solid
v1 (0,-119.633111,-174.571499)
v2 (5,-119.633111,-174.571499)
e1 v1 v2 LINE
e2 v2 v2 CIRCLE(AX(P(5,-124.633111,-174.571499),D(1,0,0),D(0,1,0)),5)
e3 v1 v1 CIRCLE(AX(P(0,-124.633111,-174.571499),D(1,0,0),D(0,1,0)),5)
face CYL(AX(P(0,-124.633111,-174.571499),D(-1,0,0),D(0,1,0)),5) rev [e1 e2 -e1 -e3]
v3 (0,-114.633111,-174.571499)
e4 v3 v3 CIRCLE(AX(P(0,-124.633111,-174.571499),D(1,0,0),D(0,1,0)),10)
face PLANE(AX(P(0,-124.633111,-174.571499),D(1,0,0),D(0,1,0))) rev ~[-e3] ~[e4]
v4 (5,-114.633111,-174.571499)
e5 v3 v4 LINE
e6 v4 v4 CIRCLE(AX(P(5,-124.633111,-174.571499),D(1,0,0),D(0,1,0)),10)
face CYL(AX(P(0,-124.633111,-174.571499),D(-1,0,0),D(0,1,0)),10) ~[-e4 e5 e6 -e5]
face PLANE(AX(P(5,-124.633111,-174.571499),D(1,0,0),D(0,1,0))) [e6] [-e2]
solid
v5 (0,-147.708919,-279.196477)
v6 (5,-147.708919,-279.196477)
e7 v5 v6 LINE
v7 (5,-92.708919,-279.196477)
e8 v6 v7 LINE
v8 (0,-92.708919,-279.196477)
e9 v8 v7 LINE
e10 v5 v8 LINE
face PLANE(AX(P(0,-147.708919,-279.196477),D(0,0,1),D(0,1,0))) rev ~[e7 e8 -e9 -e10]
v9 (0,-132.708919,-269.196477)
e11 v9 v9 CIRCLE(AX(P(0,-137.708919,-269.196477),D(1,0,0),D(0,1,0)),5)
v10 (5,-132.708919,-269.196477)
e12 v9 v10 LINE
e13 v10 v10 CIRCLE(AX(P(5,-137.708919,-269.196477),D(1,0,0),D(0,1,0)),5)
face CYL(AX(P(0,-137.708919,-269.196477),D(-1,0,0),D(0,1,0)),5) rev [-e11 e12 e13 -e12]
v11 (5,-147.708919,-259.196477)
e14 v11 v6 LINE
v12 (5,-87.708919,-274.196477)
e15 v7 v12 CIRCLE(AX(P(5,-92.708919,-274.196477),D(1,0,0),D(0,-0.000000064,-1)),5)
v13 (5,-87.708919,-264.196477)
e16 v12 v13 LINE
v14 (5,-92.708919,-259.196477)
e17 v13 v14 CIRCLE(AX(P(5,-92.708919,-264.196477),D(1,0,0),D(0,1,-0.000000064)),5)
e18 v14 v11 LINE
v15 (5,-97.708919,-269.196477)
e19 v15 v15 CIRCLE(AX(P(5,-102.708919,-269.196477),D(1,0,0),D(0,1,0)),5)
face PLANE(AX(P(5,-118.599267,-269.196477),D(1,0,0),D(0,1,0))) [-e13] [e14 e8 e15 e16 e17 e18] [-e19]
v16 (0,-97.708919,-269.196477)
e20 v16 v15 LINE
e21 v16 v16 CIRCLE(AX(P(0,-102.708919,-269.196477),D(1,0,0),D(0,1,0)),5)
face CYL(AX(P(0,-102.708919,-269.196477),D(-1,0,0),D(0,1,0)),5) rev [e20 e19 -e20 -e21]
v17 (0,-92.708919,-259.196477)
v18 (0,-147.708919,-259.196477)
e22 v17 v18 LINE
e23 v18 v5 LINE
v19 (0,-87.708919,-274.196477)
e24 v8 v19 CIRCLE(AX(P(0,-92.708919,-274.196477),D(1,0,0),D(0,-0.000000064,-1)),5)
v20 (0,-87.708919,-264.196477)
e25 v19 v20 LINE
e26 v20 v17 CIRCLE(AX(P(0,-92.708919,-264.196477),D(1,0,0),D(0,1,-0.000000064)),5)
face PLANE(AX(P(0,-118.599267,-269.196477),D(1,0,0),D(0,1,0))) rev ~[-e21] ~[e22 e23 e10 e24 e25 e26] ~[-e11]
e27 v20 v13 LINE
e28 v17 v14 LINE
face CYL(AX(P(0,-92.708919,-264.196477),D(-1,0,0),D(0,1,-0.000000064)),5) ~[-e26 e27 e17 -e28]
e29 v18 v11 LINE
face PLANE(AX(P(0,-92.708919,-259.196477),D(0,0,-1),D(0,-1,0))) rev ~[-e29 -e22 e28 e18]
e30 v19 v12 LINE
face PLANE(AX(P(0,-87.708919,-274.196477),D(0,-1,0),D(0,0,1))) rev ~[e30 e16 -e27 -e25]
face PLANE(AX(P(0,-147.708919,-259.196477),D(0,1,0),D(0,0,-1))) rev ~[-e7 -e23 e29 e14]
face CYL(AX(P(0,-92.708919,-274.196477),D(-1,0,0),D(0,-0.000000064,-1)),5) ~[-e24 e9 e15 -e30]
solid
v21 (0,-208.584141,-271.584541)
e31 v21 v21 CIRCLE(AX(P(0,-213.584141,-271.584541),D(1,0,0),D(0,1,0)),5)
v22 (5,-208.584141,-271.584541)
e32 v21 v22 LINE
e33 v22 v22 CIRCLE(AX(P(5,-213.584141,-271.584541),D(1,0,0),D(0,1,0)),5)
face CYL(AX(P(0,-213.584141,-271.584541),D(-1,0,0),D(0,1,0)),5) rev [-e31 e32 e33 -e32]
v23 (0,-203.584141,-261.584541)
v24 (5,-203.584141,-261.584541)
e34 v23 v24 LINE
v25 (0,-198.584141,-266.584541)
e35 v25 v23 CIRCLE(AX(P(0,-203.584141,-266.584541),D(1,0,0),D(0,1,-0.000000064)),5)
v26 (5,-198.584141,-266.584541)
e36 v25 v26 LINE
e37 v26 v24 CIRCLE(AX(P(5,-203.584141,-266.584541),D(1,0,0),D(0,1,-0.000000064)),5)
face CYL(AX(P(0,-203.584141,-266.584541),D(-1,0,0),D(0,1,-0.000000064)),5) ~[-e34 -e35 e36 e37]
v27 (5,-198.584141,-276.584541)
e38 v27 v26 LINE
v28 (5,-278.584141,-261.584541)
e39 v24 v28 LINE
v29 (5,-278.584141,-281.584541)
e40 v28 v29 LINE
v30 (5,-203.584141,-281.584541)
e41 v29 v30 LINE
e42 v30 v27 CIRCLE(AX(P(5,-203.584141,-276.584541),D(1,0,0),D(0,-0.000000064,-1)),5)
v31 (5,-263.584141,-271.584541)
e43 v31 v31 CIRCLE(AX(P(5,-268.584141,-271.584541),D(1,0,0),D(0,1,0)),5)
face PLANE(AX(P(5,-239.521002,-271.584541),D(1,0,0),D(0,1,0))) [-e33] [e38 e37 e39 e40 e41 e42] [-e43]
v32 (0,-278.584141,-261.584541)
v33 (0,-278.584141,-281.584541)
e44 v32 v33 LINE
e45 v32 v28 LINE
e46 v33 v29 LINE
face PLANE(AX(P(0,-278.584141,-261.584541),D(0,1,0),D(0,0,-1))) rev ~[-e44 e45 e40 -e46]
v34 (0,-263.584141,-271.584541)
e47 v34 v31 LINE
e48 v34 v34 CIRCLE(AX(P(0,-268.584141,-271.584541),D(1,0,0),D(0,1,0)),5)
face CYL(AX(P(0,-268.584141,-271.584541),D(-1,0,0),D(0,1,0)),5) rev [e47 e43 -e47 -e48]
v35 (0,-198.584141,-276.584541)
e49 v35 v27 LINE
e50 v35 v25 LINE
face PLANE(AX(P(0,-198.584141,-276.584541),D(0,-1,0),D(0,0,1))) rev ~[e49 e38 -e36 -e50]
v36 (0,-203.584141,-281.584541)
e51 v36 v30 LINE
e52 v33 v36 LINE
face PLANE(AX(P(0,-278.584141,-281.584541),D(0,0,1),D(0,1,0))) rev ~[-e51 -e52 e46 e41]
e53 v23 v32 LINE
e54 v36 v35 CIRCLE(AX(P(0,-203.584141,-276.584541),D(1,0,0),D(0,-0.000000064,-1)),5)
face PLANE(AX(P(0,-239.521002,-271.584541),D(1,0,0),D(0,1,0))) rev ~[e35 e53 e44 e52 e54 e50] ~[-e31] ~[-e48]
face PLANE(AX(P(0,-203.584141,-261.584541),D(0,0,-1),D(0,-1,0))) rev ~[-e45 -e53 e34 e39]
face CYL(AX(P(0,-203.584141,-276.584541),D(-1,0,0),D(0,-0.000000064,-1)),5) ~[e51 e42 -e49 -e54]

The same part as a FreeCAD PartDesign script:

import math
import FreeCAD as App
import Part
import Sketcher
Q = App.Units.Quantity

doc = App.newDocument("Part")
body = doc.addObject("PartDesign::Body", "Body")
body.AllowCompound = True

# Sketch on YZ plane
sketch1 = body.newObject("Sketcher::SketchObject", "Sketch")
sketch1.AttachmentSupport = (doc.getObject("YZ_Plane"), [""])
sketch1.MapMode = "FlatFace"
sketch1.addGeometry(Part.LineSegment(App.Vector(-92.708919, -259.196477, 0), App.Vector(-147.708919, -259.196477, 0)), False)
sketch1.addGeometry(Part.LineSegment(App.Vector(-147.708919, -259.196477, 0), App.Vector(-147.708919, -279.196477, 0)), False)
sketch1.addGeometry(Part.LineSegment(App.Vector(-147.708919, -279.196477, 0), App.Vector(-92.708919, -279.196477, 0)), False)
sketch1.addGeometry(Part.ArcOfCircle(Part.Circle(App.Vector(-92.708919, -274.196477, 0), App.Vector(0, 0, 1), 5), math.radians(-90.000004), math.radians(0.000004)), False)
sketch1.addGeometry(Part.LineSegment(App.Vector(-87.708919, -274.196477, 0), App.Vector(-87.708919, -264.196477, 0)), False)
sketch1.addGeometry(Part.ArcOfCircle(Part.Circle(App.Vector(-92.708919, -264.196477, 0), App.Vector(0, 0, 1), 5), math.radians(-0.000004), math.radians(90.000004)), False)
sketch1.addGeometry(Part.Circle(App.Vector(-137.708919, -269.196477, 0), App.Vector(0, 0, 1), 5), False)
sketch1.addGeometry(Part.Circle(App.Vector(-102.708919, -269.196477, 0), App.Vector(0, 0, 1), 5), False)
sketch1.addGeometry(Part.LineSegment(App.Vector(-203.584141, -261.584541, 0), App.Vector(-278.584141, -261.584541, 0)), False)
sketch1.addGeometry(Part.LineSegment(App.Vector(-278.584141, -261.584541, 0), App.Vector(-278.584141, -281.584541, 0)), False)
sketch1.addGeometry(Part.LineSegment(App.Vector(-278.584141, -281.584541, 0), App.Vector(-203.584141, -281.584541, 0)), False)
sketch1.addGeometry(Part.ArcOfCircle(Part.Circle(App.Vector(-203.584141, -276.584541, 0), App.Vector(0, 0, 1), 5), math.radians(-90.000004), math.radians(0.000004)), False)
sketch1.addGeometry(Part.LineSegment(App.Vector(-198.584141, -276.584541, 0), App.Vector(-198.584141, -266.584541, 0)), False)
sketch1.addGeometry(Part.ArcOfCircle(Part.Circle(App.Vector(-203.584141, -266.584541, 0), App.Vector(0, 0, 1), 5), math.radians(-0.000004), math.radians(90.000004)), False)
sketch1.addGeometry(Part.Circle(App.Vector(-268.584141, -271.584541, 0), App.Vector(0, 0, 1), 5), False)
sketch1.addGeometry(Part.Circle(App.Vector(-213.584141, -271.584541, 0), App.Vector(0, 0, 1), 5), False)
sketch1.addGeometry(Part.Circle(App.Vector(-124.633111, -174.571499, 0), App.Vector(0, 0, 1), 10), False)
sketch1.addGeometry(Part.Circle(App.Vector(-124.633111, -174.571499, 0), App.Vector(0, 0, 1), 5), False)
sketch1.addConstraint(Sketcher.Constraint("Coincident", 0, 2, 1, 1))
sketch1.addConstraint(Sketcher.Constraint("Coincident", 1, 2, 2, 1))
sketch1.addConstraint(Sketcher.Constraint("Tangent", 2, 2, 3, 1))
sketch1.addConstraint(Sketcher.Constraint("Tangent", 3, 2, 4, 1))
sketch1.addConstraint(Sketcher.Constraint("Tangent", 4, 2, 5, 1))
sketch1.addConstraint(Sketcher.Constraint("Tangent", 5, 2, 0, 1))
sketch1.addConstraint(Sketcher.Constraint("Coincident", 8, 2, 9, 1))
sketch1.addConstraint(Sketcher.Constraint("Coincident", 9, 2, 10, 1))
sketch1.addConstraint(Sketcher.Constraint("Tangent", 10, 2, 11, 1))
sketch1.addConstraint(Sketcher.Constraint("Tangent", 11, 2, 12, 1))
sketch1.addConstraint(Sketcher.Constraint("Tangent", 12, 2, 13, 1))
sketch1.addConstraint(Sketcher.Constraint("Tangent", 13, 2, 8, 1))
sketch1.addConstraint(Sketcher.Constraint("Horizontal", 0))
sketch1.addConstraint(Sketcher.Constraint("Vertical", 1))
sketch1.addConstraint(Sketcher.Constraint("Horizontal", 2))
sketch1.addConstraint(Sketcher.Constraint("Vertical", 4))
sketch1.addConstraint(Sketcher.Constraint("Horizontal", 8))
sketch1.addConstraint(Sketcher.Constraint("Vertical", 9))
sketch1.addConstraint(Sketcher.Constraint("Horizontal", 10))
sketch1.addConstraint(Sketcher.Constraint("Vertical", 12))
sketch1.addConstraint(Sketcher.Constraint("Coincident", 17, 3, 16, 3))
sketch1.addConstraint(Sketcher.Constraint("Equal", 3, 5))
sketch1.addConstraint(Sketcher.Constraint("Equal", 5, 6))
sketch1.addConstraint(Sketcher.Constraint("Equal", 6, 7))
sketch1.addConstraint(Sketcher.Constraint("Equal", 7, 11))
sketch1.addConstraint(Sketcher.Constraint("Equal", 11, 13))
sketch1.addConstraint(Sketcher.Constraint("Equal", 13, 14))
sketch1.addConstraint(Sketcher.Constraint("Equal", 14, 15))
sketch1.addConstraint(Sketcher.Constraint("Equal", 15, 17))
sketch1.addConstraint(Sketcher.Constraint("Horizontal", 6, 3, 7, 3))
sketch1.addConstraint(Sketcher.Constraint("Horizontal", 14, 3, 15, 3))
sketch1.addConstraint(Sketcher.Constraint("Equal", 1, 9))
sketch1.addConstraint(Sketcher.Constraint("Diameter", 6, Q("10 mm")))
sketch1.addConstraint(Sketcher.Constraint("Diameter", 16, Q("20 mm")))
sketch1.addConstraint(Sketcher.Constraint("DistanceX", 0, 2, 0, 1, Q("55 mm")))
sketch1.addConstraint(Sketcher.Constraint("DistanceX", 8, 2, 8, 1, Q("75 mm")))
sketch1.addConstraint(Sketcher.Constraint("DistanceY", 1, 2, 1, 1, Q("20 mm")))
sketch1.addConstraint(Sketcher.Constraint("DistanceX", 6, 3, 3, 3, Q("45 mm")))
sketch1.addConstraint(Sketcher.Constraint("DistanceY", 3, 3, 6, 3, Q("5 mm")))
sketch1.addConstraint(Sketcher.Constraint("DistanceX", 7, 3, 3, 3, Q("10 mm")))
sketch1.addConstraint(Sketcher.Constraint("DistanceX", 14, 3, 11, 3, Q("65 mm")))
sketch1.addConstraint(Sketcher.Constraint("DistanceY", 11, 3, 14, 3, Q("5 mm")))
sketch1.addConstraint(Sketcher.Constraint("DistanceX", 15, 3, 11, 3, Q("10 mm")))
sketch1.addConstraint(Sketcher.Constraint("DistanceY", 16, 3, -1, 1, Q("174.571499 mm")))
sketch1.addConstraint(Sketcher.Constraint("DistanceX", 3, 3, -1, 1, Q("92.708919 mm")))
sketch1.addConstraint(Sketcher.Constraint("DistanceX", 11, 3, -1, 1, Q("203.584141 mm")))
sketch1.addConstraint(Sketcher.Constraint("DistanceY", 11, 3, -1, 1, Q("276.584541 mm")))
sketch1.addConstraint(Sketcher.Constraint("DistanceX", 16, 3, -1, 1, Q("124.633111 mm")))
sketch1.addConstraint(Sketcher.Constraint("DistanceY", 6, 3, 16, 3, Q("94.624978 mm")))
pad1 = body.newObject("PartDesign::Pad", "Pad")
pad1.Profile = sketch1
pad1.Length = 5

doc.recompute()
